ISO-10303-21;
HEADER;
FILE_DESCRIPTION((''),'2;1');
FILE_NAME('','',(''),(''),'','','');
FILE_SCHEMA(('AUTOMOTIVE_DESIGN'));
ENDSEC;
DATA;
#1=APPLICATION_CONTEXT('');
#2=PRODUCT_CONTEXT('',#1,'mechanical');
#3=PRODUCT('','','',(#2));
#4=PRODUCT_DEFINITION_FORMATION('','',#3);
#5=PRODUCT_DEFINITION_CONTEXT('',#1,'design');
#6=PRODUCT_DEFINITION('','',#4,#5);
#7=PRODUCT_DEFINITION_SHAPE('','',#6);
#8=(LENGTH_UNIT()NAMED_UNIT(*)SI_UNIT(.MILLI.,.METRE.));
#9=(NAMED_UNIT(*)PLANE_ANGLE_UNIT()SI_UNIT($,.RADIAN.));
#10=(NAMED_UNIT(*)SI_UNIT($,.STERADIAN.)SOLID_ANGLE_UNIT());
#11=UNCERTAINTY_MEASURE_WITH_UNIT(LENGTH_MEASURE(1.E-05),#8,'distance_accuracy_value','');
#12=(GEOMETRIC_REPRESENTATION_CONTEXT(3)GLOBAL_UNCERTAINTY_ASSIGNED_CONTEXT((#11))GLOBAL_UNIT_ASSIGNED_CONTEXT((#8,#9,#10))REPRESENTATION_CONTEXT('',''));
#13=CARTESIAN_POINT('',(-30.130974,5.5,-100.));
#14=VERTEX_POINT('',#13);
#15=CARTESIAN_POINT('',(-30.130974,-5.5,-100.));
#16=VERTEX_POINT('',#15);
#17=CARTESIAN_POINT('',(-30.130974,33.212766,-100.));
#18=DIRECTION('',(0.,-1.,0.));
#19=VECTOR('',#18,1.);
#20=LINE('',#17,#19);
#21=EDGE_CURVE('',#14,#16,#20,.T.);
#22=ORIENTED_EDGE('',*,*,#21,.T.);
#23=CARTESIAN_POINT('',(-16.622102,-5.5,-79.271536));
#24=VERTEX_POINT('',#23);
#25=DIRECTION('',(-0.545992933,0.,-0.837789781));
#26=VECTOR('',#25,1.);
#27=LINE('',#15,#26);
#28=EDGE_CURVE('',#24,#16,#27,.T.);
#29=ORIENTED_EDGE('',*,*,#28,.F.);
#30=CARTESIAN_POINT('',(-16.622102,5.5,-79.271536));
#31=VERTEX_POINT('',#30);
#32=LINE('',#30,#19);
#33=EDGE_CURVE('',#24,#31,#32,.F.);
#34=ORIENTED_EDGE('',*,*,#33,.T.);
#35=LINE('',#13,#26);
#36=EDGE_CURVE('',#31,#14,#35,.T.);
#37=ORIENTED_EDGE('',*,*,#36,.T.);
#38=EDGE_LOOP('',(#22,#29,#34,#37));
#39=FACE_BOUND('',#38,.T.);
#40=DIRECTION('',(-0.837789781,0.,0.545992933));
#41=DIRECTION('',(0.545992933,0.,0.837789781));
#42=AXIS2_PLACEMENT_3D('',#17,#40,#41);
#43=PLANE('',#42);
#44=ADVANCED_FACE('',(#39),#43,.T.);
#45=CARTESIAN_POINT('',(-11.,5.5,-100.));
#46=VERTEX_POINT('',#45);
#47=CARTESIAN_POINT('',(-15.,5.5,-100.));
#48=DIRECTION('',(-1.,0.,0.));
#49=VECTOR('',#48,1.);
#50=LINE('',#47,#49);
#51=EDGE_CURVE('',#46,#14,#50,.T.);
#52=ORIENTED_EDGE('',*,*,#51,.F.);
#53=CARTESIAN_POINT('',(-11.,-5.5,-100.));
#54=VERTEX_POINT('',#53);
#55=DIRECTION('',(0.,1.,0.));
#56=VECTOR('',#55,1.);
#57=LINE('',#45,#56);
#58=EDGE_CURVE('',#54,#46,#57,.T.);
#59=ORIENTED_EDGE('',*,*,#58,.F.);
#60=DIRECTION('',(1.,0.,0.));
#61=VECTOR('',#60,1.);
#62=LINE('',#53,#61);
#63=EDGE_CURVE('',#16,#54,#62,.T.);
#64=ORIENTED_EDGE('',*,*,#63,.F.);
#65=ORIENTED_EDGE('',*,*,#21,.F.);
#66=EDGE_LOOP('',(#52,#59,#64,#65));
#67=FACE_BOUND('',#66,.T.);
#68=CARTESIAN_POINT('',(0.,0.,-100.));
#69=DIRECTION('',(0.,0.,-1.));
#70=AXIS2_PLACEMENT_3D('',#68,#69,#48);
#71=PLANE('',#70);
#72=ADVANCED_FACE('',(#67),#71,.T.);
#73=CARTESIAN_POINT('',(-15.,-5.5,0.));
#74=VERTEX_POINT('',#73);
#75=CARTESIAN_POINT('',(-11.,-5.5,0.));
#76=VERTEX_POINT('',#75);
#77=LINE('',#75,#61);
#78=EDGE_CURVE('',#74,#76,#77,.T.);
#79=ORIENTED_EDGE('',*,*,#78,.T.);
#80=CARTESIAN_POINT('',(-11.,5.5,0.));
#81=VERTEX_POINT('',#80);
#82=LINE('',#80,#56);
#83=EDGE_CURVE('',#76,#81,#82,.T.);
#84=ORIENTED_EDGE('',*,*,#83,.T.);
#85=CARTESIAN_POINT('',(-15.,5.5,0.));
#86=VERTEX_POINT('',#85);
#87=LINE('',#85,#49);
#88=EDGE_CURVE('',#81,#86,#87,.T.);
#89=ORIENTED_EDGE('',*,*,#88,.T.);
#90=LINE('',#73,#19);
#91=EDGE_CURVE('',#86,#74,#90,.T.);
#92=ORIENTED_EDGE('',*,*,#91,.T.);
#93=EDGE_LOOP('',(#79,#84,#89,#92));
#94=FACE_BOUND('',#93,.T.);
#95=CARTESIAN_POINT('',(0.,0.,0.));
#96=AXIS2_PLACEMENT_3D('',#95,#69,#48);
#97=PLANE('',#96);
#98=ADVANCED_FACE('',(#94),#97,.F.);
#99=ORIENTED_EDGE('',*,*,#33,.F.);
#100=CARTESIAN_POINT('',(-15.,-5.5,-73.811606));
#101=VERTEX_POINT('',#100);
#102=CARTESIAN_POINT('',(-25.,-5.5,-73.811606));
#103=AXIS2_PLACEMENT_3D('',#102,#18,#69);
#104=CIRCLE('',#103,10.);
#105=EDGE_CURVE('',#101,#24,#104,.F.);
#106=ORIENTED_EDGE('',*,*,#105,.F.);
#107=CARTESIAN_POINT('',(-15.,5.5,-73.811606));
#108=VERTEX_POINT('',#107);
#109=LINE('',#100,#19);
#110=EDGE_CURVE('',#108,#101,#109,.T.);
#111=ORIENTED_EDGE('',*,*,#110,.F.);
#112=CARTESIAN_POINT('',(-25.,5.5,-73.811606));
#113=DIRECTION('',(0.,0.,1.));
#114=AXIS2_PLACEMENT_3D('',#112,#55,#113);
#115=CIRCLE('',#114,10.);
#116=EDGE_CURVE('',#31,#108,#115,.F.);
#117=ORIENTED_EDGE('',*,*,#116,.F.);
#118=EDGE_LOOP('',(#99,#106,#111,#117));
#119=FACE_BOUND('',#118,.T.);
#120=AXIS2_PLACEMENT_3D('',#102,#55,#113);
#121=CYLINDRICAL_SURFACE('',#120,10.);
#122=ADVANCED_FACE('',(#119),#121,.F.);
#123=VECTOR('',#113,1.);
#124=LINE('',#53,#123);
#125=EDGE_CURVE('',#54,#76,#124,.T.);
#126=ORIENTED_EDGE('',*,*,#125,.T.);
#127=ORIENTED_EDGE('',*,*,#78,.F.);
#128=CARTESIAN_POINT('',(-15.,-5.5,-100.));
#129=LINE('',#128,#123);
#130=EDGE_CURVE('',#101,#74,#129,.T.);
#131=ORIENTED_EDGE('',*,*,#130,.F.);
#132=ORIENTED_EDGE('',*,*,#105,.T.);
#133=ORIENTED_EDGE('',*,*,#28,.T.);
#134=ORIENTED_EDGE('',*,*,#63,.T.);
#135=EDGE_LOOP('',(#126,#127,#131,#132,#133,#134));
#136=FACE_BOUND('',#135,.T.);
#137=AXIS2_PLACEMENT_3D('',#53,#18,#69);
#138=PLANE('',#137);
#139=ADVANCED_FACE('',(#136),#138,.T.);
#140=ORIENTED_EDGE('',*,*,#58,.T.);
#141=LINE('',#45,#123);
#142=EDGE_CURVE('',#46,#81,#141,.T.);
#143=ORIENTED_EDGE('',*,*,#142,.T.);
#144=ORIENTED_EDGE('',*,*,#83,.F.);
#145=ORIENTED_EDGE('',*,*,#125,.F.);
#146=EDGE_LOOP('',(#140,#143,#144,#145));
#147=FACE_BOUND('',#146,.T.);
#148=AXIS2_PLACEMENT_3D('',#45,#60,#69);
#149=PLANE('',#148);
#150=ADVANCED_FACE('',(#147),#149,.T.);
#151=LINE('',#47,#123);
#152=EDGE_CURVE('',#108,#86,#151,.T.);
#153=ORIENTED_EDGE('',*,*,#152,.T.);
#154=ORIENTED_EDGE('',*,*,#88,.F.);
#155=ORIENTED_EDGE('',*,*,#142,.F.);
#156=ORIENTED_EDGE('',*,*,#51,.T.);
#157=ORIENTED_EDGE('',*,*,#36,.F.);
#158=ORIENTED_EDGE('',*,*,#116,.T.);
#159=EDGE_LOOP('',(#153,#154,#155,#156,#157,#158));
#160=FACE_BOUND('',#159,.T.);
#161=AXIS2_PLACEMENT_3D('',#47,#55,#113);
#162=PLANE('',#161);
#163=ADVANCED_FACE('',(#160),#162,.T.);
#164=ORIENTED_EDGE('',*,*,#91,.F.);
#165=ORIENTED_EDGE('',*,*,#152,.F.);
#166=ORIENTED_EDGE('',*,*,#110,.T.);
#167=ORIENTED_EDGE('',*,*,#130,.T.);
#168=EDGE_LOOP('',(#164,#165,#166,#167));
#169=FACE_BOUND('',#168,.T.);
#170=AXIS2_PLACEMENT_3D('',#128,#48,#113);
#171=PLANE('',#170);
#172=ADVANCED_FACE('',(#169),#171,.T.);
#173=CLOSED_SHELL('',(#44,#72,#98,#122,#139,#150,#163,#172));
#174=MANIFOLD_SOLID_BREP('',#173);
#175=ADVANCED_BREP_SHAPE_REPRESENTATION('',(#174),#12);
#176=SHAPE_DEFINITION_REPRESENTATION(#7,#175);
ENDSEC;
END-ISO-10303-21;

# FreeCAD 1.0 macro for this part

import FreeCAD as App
import Part
import Sketcher
from FreeCAD import Vector
Q = App.Units.Quantity


def edges_at(feature, points):
    """Names of the edges that pass closest to the given points."""
    edges = feature.Shape.Edges
    near = lambda p: min(range(len(edges)), key=lambda i: edges[i].distToShape(Part.Vertex(*p))[0])
    return sorted({f"Edge{near(p) + 1}" for p in points})

doc = App.newDocument("Part")
body = doc.addObject("PartDesign::Body", "Body")

sketch1 = body.newObject("Sketcher::SketchObject", "Sketch")
sketch1.AttachmentSupport = (doc.getObject("XY_Plane"), [""])
sketch1.MapMode = "FlatFace"
sketch1.addGeometry([
    Part.LineSegment(Vector(-15, 5.5, 0), Vector(-15, -5.5, 0)),
    Part.LineSegment(Vector(-15, -5.5, 0), Vector(-11, -5.5, 0)),
    Part.LineSegment(Vector(-11, -5.5, 0), Vector(-11, 5.5, 0)),
    Part.LineSegment(Vector(-11, 5.5, 0), Vector(-15, 5.5, 0)),
], False)
sketch1.addConstraint([
    Sketcher.Constraint("Coincident", 0, 2, 1, 1),
    Sketcher.Constraint("Coincident", 1, 2, 2, 1),
    Sketcher.Constraint("Coincident", 2, 2, 3, 1),
    Sketcher.Constraint("Coincident", 3, 2, 0, 1),
    Sketcher.Constraint("Vertical", 0),
    Sketcher.Constraint("Horizontal", 1),
    Sketcher.Constraint("Vertical", 2),
    Sketcher.Constraint("Horizontal", 3),
    Sketcher.Constraint("DistanceX", 1, 1, 1, 2, Q("4 mm")),
    Sketcher.Constraint("DistanceY", 0, 2, 0, 1, Q("11 mm")),
    Sketcher.Constraint("DistanceX", 0, 2, -1, 1, Q("15 mm")),
    Sketcher.Constraint("DistanceY", 0, 2, -1, 1, Q("5.5 mm")),
])
pad1 = body.newObject("PartDesign::Pad", "Pad")
pad1.Profile = sketch1
pad1.Length = 100
pad1.Reversed = True

sketch2 = body.newObject("Sketcher::SketchObject", "Sketch001")
sketch2.AttachmentSupport = (doc.getObject("XZ_Plane"), [""])
sketch2.MapMode = "FlatFace"
sketch2.AttachmentOffset = App.Placement(Vector(0, 0, 5.5), App.Rotation())
sketch2.addGeometry([
    Part.LineSegment(Vector(-30, -100, 0), Vector(-15, -100, 0)),
    Part.LineSegment(Vector(-15, -100, 0), Vector(-15, -77, 0)),
    Part.LineSegment(Vector(-15, -77, 0), Vector(-30, -100, 0)),
], False)
sketch2.addConstraint([
    Sketcher.Constraint("Coincident", 0, 2, 1, 1),
    Sketcher.Constraint("Coincident", 1, 2, 2, 1),
    Sketcher.Constraint("Coincident", 2, 2, 0, 1),
    Sketcher.Constraint("Horizontal", 0),
    Sketcher.Constraint("Vertical", 1),
    Sketcher.Constraint("DistanceX", 0, 2, -1, 1, Q("15 mm")),
    Sketcher.Constraint("DistanceY", 0, 2, -1, 1, Q("100 mm")),
    Sketcher.Constraint("DistanceX", 0, 1, 0, 2, Q("15.130974 mm")),
    Sketcher.Constraint("DistanceY", 1, 1, 1, 2, Q("23.217472 mm")),
])
pad2 = body.newObject("PartDesign::Pad", "Pad001")
pad2.Profile = sketch2
pad2.Length = 11
pad2.Reversed = True
doc.recompute()

fillet = body.newObject("PartDesign::Fillet", "Fillet")
fillet.Base = (pad2, edges_at(pad2, [(-15, 0, -76.783)]))
fillet.Radius = 10

doc.recompute()
